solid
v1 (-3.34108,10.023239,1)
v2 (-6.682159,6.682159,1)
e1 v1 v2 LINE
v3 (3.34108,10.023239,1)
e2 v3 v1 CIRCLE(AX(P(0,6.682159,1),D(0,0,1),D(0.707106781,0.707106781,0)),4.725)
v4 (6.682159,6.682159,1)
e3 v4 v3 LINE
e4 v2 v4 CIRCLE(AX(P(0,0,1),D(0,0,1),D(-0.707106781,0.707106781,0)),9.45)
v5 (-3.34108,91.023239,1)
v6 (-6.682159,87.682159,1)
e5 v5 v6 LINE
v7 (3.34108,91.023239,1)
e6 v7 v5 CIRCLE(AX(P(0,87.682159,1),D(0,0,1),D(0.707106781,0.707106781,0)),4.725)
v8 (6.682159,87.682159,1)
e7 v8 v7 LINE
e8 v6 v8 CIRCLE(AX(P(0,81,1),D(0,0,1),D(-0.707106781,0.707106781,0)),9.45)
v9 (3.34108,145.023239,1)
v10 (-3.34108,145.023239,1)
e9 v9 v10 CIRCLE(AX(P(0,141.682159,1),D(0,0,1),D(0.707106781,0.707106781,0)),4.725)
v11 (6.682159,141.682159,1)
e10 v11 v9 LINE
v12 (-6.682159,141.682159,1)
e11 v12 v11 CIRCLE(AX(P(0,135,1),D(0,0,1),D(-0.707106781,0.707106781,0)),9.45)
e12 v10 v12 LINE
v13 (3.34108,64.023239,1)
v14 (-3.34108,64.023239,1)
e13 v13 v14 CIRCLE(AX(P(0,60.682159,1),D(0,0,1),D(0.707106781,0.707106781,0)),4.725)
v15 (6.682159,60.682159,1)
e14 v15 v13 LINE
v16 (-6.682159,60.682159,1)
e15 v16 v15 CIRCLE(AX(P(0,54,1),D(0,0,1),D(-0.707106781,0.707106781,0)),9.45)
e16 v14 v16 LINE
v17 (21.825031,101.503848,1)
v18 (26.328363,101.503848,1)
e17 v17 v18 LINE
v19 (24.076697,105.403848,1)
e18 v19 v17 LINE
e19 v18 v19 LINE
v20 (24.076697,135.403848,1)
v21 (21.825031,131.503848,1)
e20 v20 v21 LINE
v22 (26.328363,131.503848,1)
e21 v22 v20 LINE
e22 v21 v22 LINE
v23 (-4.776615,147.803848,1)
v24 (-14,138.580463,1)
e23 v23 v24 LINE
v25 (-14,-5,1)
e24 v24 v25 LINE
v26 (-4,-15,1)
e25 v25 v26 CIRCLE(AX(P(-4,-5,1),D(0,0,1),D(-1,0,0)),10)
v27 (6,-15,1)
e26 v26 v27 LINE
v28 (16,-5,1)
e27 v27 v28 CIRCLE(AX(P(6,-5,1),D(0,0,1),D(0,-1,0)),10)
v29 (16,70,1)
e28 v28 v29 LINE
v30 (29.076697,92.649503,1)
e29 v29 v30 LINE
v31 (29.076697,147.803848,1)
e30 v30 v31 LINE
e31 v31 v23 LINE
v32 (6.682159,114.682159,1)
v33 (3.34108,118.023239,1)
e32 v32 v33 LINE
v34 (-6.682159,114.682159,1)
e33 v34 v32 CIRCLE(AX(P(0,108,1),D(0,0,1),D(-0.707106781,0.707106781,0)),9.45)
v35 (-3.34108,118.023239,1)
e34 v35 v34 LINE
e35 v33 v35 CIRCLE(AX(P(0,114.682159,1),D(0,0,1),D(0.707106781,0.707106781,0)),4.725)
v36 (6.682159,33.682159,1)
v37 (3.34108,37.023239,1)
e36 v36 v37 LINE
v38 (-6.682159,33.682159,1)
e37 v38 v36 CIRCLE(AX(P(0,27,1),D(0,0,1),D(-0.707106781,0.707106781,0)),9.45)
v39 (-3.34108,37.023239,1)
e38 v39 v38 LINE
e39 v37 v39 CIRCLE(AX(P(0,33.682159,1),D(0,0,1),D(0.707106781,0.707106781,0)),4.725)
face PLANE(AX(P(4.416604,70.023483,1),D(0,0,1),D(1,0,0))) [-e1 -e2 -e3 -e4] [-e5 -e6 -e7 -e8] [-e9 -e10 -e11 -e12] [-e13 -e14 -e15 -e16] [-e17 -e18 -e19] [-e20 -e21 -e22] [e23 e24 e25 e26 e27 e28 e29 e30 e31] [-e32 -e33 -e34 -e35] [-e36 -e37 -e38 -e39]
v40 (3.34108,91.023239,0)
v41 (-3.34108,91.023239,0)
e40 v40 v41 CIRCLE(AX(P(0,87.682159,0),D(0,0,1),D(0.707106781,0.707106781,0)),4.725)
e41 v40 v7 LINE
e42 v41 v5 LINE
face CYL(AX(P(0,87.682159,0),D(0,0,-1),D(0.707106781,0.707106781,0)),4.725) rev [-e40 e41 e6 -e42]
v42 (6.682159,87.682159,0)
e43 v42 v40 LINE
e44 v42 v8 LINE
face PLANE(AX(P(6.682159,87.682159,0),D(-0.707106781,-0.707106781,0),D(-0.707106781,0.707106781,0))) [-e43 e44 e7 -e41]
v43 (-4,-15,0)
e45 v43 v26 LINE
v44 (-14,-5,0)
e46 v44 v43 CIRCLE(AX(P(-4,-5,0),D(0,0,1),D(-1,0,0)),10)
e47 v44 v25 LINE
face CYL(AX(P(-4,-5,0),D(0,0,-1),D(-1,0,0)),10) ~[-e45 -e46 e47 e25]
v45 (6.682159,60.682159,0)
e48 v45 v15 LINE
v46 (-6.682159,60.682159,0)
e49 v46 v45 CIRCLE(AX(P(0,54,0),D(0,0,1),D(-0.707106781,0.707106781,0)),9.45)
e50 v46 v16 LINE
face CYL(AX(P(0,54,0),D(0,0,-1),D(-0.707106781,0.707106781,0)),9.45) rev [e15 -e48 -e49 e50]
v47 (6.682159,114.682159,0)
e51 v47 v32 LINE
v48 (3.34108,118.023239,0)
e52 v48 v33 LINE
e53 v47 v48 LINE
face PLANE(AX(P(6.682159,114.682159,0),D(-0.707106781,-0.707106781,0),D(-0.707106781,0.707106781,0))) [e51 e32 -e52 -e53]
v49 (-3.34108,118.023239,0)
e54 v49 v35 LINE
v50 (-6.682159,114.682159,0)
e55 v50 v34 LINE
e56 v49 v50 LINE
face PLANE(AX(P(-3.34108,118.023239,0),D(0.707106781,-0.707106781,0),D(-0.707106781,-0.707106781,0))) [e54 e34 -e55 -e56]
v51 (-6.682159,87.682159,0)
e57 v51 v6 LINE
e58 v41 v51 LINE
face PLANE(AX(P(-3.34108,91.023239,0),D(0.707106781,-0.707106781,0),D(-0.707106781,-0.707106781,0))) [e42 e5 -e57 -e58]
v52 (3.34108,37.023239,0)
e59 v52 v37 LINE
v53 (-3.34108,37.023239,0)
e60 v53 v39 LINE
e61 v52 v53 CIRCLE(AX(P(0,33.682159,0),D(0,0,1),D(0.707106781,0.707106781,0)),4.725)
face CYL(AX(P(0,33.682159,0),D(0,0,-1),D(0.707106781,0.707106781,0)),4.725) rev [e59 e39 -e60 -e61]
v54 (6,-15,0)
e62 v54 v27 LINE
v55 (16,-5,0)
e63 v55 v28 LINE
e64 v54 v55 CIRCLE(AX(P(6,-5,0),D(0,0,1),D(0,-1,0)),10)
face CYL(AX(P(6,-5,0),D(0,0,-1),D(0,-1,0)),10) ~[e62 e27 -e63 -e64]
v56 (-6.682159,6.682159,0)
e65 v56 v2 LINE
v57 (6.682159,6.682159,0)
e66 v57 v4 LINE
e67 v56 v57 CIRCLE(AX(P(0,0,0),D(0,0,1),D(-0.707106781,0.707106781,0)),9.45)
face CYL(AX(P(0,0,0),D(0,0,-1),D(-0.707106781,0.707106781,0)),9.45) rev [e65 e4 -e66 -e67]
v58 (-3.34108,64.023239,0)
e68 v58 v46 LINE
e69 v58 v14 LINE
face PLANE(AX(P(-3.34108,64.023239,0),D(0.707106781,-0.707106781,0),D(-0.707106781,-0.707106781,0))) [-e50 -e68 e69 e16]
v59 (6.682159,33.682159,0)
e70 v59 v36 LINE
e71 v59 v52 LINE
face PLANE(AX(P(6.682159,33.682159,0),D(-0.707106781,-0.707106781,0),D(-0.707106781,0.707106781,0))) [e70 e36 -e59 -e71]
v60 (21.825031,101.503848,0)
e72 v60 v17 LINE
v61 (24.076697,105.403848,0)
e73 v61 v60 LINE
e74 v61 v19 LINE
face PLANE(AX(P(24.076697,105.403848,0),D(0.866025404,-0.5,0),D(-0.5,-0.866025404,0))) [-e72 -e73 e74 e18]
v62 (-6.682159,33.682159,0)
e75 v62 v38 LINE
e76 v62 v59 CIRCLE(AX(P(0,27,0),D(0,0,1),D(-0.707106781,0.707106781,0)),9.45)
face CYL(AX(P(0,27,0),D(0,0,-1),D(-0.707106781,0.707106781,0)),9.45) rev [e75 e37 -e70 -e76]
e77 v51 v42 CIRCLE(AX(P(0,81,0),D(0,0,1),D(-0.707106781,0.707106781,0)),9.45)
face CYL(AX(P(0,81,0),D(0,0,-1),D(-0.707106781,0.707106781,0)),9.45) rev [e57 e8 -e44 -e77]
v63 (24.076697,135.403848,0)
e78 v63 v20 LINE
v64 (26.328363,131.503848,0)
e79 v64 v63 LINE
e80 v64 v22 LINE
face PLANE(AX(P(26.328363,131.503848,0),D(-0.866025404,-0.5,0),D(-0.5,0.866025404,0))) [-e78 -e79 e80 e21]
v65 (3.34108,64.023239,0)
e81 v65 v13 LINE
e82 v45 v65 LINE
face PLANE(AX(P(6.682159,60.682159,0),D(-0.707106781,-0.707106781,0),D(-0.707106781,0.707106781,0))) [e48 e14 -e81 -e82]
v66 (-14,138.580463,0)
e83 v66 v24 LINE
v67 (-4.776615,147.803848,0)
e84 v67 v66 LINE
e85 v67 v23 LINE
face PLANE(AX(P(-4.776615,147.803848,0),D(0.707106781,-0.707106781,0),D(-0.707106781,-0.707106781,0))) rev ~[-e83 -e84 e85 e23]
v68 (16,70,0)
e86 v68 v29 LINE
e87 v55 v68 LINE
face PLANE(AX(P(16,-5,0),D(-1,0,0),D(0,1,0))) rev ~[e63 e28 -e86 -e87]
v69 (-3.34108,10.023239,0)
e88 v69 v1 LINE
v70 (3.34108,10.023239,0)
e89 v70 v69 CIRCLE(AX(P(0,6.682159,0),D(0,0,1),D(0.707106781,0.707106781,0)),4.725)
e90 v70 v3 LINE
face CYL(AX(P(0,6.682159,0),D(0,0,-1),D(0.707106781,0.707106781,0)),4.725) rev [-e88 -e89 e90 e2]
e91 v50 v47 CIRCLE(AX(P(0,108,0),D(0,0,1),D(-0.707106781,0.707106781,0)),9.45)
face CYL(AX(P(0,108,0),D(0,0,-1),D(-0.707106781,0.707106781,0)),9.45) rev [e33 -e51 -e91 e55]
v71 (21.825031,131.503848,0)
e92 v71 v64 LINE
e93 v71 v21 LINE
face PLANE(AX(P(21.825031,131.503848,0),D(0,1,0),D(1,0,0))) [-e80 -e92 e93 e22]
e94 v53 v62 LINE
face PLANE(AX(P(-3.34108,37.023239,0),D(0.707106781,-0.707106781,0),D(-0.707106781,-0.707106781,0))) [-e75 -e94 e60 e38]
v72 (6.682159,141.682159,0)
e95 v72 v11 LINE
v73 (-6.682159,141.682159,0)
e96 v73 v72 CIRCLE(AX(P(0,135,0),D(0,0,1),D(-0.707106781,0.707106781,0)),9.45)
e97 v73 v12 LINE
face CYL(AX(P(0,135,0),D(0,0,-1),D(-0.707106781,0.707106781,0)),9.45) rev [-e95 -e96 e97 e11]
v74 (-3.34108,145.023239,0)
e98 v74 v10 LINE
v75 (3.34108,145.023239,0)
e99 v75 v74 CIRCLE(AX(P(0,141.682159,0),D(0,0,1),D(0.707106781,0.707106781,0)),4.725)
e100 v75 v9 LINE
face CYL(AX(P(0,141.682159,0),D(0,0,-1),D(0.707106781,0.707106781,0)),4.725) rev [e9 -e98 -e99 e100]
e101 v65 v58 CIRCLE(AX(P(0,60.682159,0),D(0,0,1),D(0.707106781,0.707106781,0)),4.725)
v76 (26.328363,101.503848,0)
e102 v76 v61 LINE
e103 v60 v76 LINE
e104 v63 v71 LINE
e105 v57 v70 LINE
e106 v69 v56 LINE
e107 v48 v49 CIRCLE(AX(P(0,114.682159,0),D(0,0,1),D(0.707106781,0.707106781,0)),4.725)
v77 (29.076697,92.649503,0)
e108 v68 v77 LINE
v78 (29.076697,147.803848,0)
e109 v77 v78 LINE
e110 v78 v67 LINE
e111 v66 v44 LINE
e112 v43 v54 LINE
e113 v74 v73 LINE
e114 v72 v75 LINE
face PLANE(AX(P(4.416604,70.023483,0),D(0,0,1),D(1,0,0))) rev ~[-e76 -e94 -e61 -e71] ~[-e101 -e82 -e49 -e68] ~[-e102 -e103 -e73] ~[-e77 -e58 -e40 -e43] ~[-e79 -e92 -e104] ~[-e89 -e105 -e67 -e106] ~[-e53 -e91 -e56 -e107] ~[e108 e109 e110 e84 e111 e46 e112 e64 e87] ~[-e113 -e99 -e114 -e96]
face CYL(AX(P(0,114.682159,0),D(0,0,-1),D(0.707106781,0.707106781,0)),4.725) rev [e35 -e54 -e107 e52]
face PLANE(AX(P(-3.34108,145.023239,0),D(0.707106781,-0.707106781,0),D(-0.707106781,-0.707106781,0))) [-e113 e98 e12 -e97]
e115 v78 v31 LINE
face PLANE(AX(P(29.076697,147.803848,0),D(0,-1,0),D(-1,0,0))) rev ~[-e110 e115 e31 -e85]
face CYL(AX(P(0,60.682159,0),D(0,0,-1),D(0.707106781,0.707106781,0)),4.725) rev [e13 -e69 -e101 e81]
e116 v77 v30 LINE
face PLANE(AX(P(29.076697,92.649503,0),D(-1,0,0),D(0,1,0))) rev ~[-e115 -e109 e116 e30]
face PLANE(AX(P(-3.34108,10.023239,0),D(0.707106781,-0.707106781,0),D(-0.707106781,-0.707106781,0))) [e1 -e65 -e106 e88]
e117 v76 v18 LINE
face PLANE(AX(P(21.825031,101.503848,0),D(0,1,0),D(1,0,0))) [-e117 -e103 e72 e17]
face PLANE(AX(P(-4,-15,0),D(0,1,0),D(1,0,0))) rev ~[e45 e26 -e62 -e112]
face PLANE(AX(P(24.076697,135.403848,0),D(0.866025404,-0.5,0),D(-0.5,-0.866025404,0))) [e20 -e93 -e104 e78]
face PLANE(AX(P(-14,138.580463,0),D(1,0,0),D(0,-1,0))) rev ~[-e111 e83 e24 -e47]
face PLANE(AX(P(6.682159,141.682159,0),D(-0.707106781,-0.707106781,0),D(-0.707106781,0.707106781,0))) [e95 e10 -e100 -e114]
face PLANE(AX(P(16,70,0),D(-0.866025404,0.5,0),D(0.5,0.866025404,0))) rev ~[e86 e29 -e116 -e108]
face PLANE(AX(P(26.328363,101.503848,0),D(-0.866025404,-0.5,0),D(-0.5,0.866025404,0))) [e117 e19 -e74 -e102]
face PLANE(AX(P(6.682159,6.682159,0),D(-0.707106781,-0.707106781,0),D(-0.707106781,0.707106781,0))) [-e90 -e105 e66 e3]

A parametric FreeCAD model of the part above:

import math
import FreeCAD as App
import Part
import Sketcher
from FreeCAD import Vector
Q = App.Units.Quantity


def add_polygon(sketch, points):
    """Adds a closed chain of lines whose ends are joined by coincident constraints."""
    first, n = sketch.GeometryCount, len(points)
    for a, b in zip(points, points[1:] + points[:1]):
        sketch.addGeometry(Part.LineSegment(App.Vector(*a, 0), App.Vector(*b, 0)), False)
    for i in range(n):
        sketch.addConstraint(Sketcher.Constraint("Coincident", first + i, 2, first + (i + 1) % n, 1))

doc = App.newDocument("Part")
params = doc.addObject("Spreadsheet::Sheet", "Params")
for row, (alias, value) in enumerate([
    ("sketch1_radius", "10 mm"),
    ("sketch1_width", "10 mm"),
    ("sketch1_height", "75 mm"),
    ("sketch1_radius2", "9.45 mm"),
    ("pad1_length", "1 mm"),
], start=1):
    params.set(f"A{row}", alias)
    params.set(f"B{row}", "=" + value)
    params.setAlias(f"B{row}", alias)

body = doc.addObject("PartDesign::Body", "Body")

sketch1 = doc.addObject("Sketcher::SketchObject", "Sketch")
body.addObject(sketch1)
sketch1.AttachmentSupport = (doc.XY_Plane, [""])
sketch1.MapMode = "FlatFace"
sketch1.addGeometry(Part.LineSegment(Vector(-4, -15, 0), Vector(6, -15, 0)), False)
sketch1.addGeometry(Part.ArcOfCircle(Part.Circle(Vector(6, -5, 0), Vector(0, 0, 1), 10), math.radians(-90), math.radians(0)), False)
sketch1.addGeometry(Part.LineSegment(Vector(16, -5, 0), Vector(16, 70, 0)), False)
sketch1.addGeometry(Part.LineSegment(Vector(16, 70, 0), Vector(29.1, 92.6, 0)), False)
sketch1.addGeometry(Part.LineSegment(Vector(29.1, 92.6, 0), Vector(29.1, 147.8, 0)), False)
sketch1.addGeometry(Part.LineSegment(Vector(29.1, 147.8, 0), Vector(-4.8, 147.8, 0)), False)
sketch1.addGeometry(Part.LineSegment(Vector(-4.8, 147.8, 0), Vector(-14, 138.6, 0)), False)
sketch1.addGeometry(Part.LineSegment(Vector(-14, 138.6, 0), Vector(-14, -5, 0)), False)
sketch1.addGeometry(Part.ArcOfCircle(Part.Circle(Vector(-4, -5, 0), Vector(0, 0, 1), 10), math.radians(180), math.radians(270)), False)
sketch1.addGeometry(Part.ArcOfCircle(Part.Circle(Vector(0, 6.7, 0), Vector(0, 0, 1), 4.7), math.radians(45), math.radians(135)), False)
sketch1.addGeometry(Part.LineSegment(Vector(3.3, 10, 0), Vector(6.7, 6.7, 0)), False)
sketch1.addGeometry(Part.ArcOfCircle(Part.Circle(Vector(0, 0, 0), Vector(0, 0, 1), 9.4), math.radians(135), math.radians(405)), False)
sketch1.addGeometry(Part.LineSegment(Vector(-6.7, 6.7, 0), Vector(-3.3, 10, 0)), False)
sketch1.addGeometry(Part.ArcOfCircle(Part.Circle(Vector(0, 27, 0), Vector(0, 0, 1), 9.4), math.radians(135), math.radians(405)), False)
sketch1.addGeometry(Part.LineSegment(Vector(-6.7, 33.7, 0), Vector(-3.3, 37, 0)), False)
sketch1.addGeometry(Part.ArcOfCircle(Part.Circle(Vector(0, 33.7, 0), Vector(0, 0, 1), 4.7), math.radians(45), math.radians(135)), False)
sketch1.addGeometry(Part.LineSegment(Vector(3.3, 37, 0), Vector(6.7, 33.7, 0)), False)
sketch1.addGeometry(Part.ArcOfCircle(Part.Circle(Vector(0, 60.7, 0), Vector(0, 0, 1), 4.7), math.radians(45), math.radians(135)), False)
sketch1.addGeometry(Part.LineSegment(Vector(3.3, 64, 0), Vector(6.7, 60.7, 0)), False)
sketch1.addGeometry(Part.ArcOfCircle(Part.Circle(Vector(0, 54, 0), Vector(0, 0, 1), 9.4), math.radians(135), math.radians(405)), False)
sketch1.addGeometry(Part.LineSegment(Vector(-6.7, 60.7, 0), Vector(-3.3, 64, 0)), False)
sketch1.addGeometry(Part.ArcOfCircle(Part.Circle(Vector(0, 81, 0), Vector(0, 0, 1), 9.4), math.radians(135), math.radians(405)), False)
sketch1.addGeometry(Part.LineSegment(Vector(-6.7, 87.7, 0), Vector(-3.3, 91, 0)), False)
sketch1.addGeometry(Part.ArcOfCircle(Part.Circle(Vector(0, 87.7, 0), Vector(0, 0, 1), 4.7), math.radians(45), math.radians(135)), False)
sketch1.addGeometry(Part.LineSegment(Vector(3.3, 91, 0), Vector(6.7, 87.7, 0)), False)
sketch1.addGeometry(Part.ArcOfCircle(Part.Circle(Vector(0, 108, 0), Vector(0, 0, 1), 9.4), math.radians(135), math.radians(405)), False)
sketch1.addGeometry(Part.LineSegment(Vector(-6.7, 114.7, 0), Vector(-3.3, 118, 0)), False)
sketch1.addGeometry(Part.ArcOfCircle(Part.Circle(Vector(0, 114.7, 0), Vector(0, 0, 1), 4.7), math.radians(45), math.radians(135)), False)
sketch1.addGeometry(Part.LineSegment(Vector(3.3, 118, 0), Vector(6.7, 114.7, 0)), False)
sketch1.addGeometry(Part.ArcOfCircle(Part.Circle(Vector(0, 135, 0), Vector(0, 0, 1), 9.4), math.radians(135), math.radians(405)), False)
sketch1.addGeometry(Part.LineSegment(Vector(-6.7, 141.7, 0), Vector(-3.3, 145, 0)), False)
sketch1.addGeometry(Part.ArcOfCircle(Part.Circle(Vector(0, 141.7, 0), Vector(0, 0, 1), 4.7), math.radians(45), math.radians(135)), False)
sketch1.addGeometry(Part.LineSegment(Vector(3.3, 145, 0), Vector(6.7, 141.7, 0)), False)
add_polygon(sketch1, [(21.8, 101.5), (24.1, 105.4), (26.3, 101.5)])
add_polygon(sketch1, [(24.1, 135.4), (26.3, 131.5), (21.8, 131.5)])
sketch1.addConstraint([
    Sketcher.Constraint("Tangent", 0, 2, 1, 1),
    Sketcher.Constraint("Tangent", 1, 2, 2, 1),
    Sketcher.Constraint("Coincident", 2, 2, 3, 1),
    Sketcher.Constraint("Coincident", 3, 2, 4, 1),
    Sketcher.Constraint("Coincident", 4, 2, 5, 1),
    Sketcher.Constraint("Coincident", 5, 2, 6, 1),
    Sketcher.Constraint("Coincident", 6, 2, 7, 1),
    Sketcher.Constraint("Tangent", 7, 2, 8, 1),
    Sketcher.Constraint("Tangent", 8, 2, 0, 1),
    Sketcher.Constraint("Tangent", 9, 1, 10, 1),
    Sketcher.Constraint("Tangent", 10, 2, 11, 2),
    Sketcher.Constraint("Tangent", 11, 1, 12, 1),
    Sketcher.Constraint("Tangent", 12, 2, 9, 2),
    Sketcher.Constraint("Tangent", 13, 1, 14, 1),
    Sketcher.Constraint("Tangent", 14, 2, 15, 2),
    Sketcher.Constraint("Tangent", 15, 1, 16, 1),
    Sketcher.Constraint("Tangent", 16, 2, 13, 2),
    Sketcher.Constraint("Tangent", 17, 1, 18, 1),
    Sketcher.Constraint("Tangent", 18, 2, 19, 2),
    Sketcher.Constraint("Tangent", 19, 1, 20, 1),
    Sketcher.Constraint("Tangent", 20, 2, 17, 2),
    Sketcher.Constraint("Tangent", 21, 1, 22, 1),
    Sketcher.Constraint("Tangent", 22, 2, 23, 2),
    Sketcher.Constraint("Tangent", 23, 1, 24, 1),
    Sketcher.Constraint("Tangent", 24, 2, 21, 2),
    Sketcher.Constraint("Tangent", 25, 1, 26, 1),
    Sketcher.Constraint("Tangent", 26, 2, 27, 2),
    Sketcher.Constraint("Tangent", 27, 1, 28, 1),
    Sketcher.Constraint("Tangent", 28, 2, 25, 2),
    Sketcher.Constraint("Tangent", 29, 1, 30, 1),
    Sketcher.Constraint("Tangent", 30, 2, 31, 2),
    Sketcher.Constraint("Tangent", 31, 1, 32, 1),
    Sketcher.Constraint("Tangent", 32, 2, 29, 2),
    Sketcher.Constraint("Horizontal", 0),
    Sketcher.Constraint("Vertical", 2),
    Sketcher.Constraint("Vertical", 4),
    Sketcher.Constraint("Horizontal", 5),
    Sketcher.Constraint("Vertical", 7),
    Sketcher.Constraint("Horizontal", 35),
    Sketcher.Constraint("Horizontal", 37),
    Sketcher.Constraint("Coincident", 11, 3, -1, 1),
    Sketcher.Constraint("Equal", 1, 8),
    Sketcher.Constraint("Equal", 11, 13),
    Sketcher.Constraint("Equal", 9, 15),
    Sketcher.Constraint("Equal", 15, 17),
    Sketcher.Constraint("Equal", 13, 19),
    Sketcher.Constraint("Equal", 19, 21),
    Sketcher.Constraint("Equal", 17, 23),
    Sketcher.Constraint("Equal", 21, 25),
    Sketcher.Constraint("Equal", 23, 27),
    Sketcher.Constraint("Equal", 25, 29),
    Sketcher.Constraint("Equal", 27, 31),
    Sketcher.Constraint("Symmetric", 14, 2, 15, 1, -2),
    Sketcher.Constraint("Symmetric", 18, 2, 19, 1, -2),
    Sketcher.Constraint("Symmetric", 22, 2, 23, 1, -2),
    Sketcher.Constraint("Symmetric", 26, 2, 27, 1, -2),
    Sketcher.Constraint("Symmetric", 30, 2, 31, 1, -2),
    Sketcher.Constraint("PointOnObject", 9, 3, -2),
    Sketcher.Constraint("Perpendicular", 6, 10),
    Sketcher.Constraint("Perpendicular", 10, 12),
    Sketcher.Constraint("Parallel", 12, 14),
    Sketcher.Constraint("Parallel", 16, 18),
    Sketcher.Constraint("Parallel", 20, 22),
    Sketcher.Constraint("Perpendicular", 24, 26),
    Sketcher.Constraint("Perpendicular", 28, 30),
    Sketcher.Constraint("Parallel", 3, 33),
    Sketcher.Constraint("Parallel", 34, 36),
    Sketcher.Constraint("Parallel", 33, 38),
    Sketcher.Constraint("Horizontal", 9, 3, 10, 2),
    Sketcher.Constraint("Vertical", 34, 2, 36, 2),
    Sketcher.Constraint("Vertical", 35, 2, 37, 2),
    Sketcher.Constraint("Equal", 33, 34),
    Sketcher.Constraint("Radius", 1, Q("10 mm")),
    Sketcher.Constraint("DistanceX", 0, 1, 0, 2, Q("10 mm")),
    Sketcher.Constraint("DistanceY", 2, 1, 2, 2, Q("75 mm")),
    Sketcher.Constraint("Angle", 3, Q("60 deg")),
    Sketcher.Constraint("Radius", 11, Q("9.45 mm")),
    Sketcher.Constraint("DistanceX", -1, 1, 1, 3, Q("6 mm")),
    Sketcher.Constraint("DistanceY", 1, 3, -1, 1, Q("5 mm")),
    Sketcher.Constraint("DistanceY", -1, 1, 13, 3, Q("27 mm")),
    Sketcher.Constraint("DistanceY", -1, 1, 19, 3, Q("54 mm")),
    Sketcher.Constraint("DistanceY", -1, 1, 21, 3, Q("81 mm")),
    Sketcher.Constraint("DistanceY", -1, 1, 25, 3, Q("108 mm")),
    Sketcher.Constraint("DistanceY", -1, 1, 29, 3, Q("135 mm")),
    Sketcher.Constraint("DistanceX", 33, 2, 3, 2, Q("5 mm")),
    Sketcher.Constraint("DistanceY", 34, 2, 33, 2, Q("3.9 mm")),
    Sketcher.Constraint("DistanceY", 36, 2, 4, 2, Q("16.3 mm")),
    Sketcher.Constraint("DistanceY", 33, 2, 36, 2, Q("26.1 mm")),
    Sketcher.Constraint("DistanceX", 5, 2, 5, 1, Q("33.853312 mm")),
    Sketcher.Constraint("DistanceY", 4, 1, 4, 2, Q("55.154344 mm")),
    Sketcher.Constraint("DistanceY", 7, 2, 7, 1, Q("143.580463 mm")),
])
sketch1.setExpression("Constraints[78]", "Params.sketch1_radius")
sketch1.setExpression("Constraints[79]", "Params.sketch1_width")
sketch1.setExpression("Constraints[80]", "Params.sketch1_height")
sketch1.setExpression("Constraints[82]", "Params.sketch1_radius2")
pad1 = doc.addObject("PartDesign::Pad", "Pad")
body.addObject(pad1)
pad1.Profile = sketch1
pad1.setExpression("Length", "Params.pad1_length")

doc.recompute()
